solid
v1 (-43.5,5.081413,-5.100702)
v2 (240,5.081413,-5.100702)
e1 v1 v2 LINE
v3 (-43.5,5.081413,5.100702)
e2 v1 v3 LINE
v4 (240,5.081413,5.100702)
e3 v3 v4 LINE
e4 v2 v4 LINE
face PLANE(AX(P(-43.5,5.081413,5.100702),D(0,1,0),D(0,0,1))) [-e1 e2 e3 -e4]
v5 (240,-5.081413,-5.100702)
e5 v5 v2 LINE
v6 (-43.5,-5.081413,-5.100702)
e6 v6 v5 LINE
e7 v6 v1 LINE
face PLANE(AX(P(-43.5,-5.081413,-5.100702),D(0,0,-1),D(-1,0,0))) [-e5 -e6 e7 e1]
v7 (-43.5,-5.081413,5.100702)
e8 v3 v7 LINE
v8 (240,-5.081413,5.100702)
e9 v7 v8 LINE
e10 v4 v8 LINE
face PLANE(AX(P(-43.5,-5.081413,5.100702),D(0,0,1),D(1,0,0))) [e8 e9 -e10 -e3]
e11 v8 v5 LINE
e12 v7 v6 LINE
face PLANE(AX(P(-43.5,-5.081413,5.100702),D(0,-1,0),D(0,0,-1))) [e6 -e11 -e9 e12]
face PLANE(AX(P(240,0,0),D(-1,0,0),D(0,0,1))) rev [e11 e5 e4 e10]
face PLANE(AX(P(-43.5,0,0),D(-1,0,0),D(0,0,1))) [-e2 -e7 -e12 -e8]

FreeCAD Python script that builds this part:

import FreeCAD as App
import Part
import Sketcher

doc = App.newDocument("Part")
body = doc.addObject("PartDesign::Body", "Body")

sketch1 = body.newObject("Sketcher::SketchObject", "Sketch")
sketch1.AttachmentSupport = (doc.getObject("YZ_Plane"), [""])
sketch1.MapMode = "FlatFace"
sketch1.addGeometry([
    Part.LineSegment(App.Vector(5.081413, 5.100702, 0), App.Vector(-5.081413, 5.100702, 0)),
    Part.LineSegment(App.Vector(-5.081413, 5.100702, 0), App.Vector(-5.081413, -5.100702, 0)),
    Part.LineSegment(App.Vector(-5.081413, -5.100702, 0), App.Vector(5.081413, -5.100702, 0)),
    Part.LineSegment(App.Vector(5.081413, -5.100702, 0), App.Vector(5.081413, 5.100702, 0)),
], False)
sketch1.addConstraint([
    Sketcher.Constraint("Coincident", 0, 2, 1, 1),
    Sketcher.Constraint("Coincident", 1, 2, 2, 1),
    Sketcher.Constraint("Coincident", 2, 2, 3, 1),
    Sketcher.Constraint("Coincident", 3, 2, 0, 1),
    Sketcher.Constraint("Horizontal", 0),
    Sketcher.Constraint("Vertical", 1),
    Sketcher.Constraint("Horizontal", 2),
    Sketcher.Constraint("Vertical", 3),
    Sketcher.Constraint("Symmetric", 0, 2, 2, 2, -1, 1),
    Sketcher.Constraint("DistanceX", 0, 2, 0, 1, 10.162827),
    Sketcher.Constraint("DistanceY", 1, 2, 1, 1, 10.201405),
])
pad1 = body.newObject("PartDesign::Pad", "Pad")
pad1.Profile = sketch1
pad1.Type = "TwoLengths"
pad1.Length = 240
pad1.Length2 = 43.5

doc.recompute()
